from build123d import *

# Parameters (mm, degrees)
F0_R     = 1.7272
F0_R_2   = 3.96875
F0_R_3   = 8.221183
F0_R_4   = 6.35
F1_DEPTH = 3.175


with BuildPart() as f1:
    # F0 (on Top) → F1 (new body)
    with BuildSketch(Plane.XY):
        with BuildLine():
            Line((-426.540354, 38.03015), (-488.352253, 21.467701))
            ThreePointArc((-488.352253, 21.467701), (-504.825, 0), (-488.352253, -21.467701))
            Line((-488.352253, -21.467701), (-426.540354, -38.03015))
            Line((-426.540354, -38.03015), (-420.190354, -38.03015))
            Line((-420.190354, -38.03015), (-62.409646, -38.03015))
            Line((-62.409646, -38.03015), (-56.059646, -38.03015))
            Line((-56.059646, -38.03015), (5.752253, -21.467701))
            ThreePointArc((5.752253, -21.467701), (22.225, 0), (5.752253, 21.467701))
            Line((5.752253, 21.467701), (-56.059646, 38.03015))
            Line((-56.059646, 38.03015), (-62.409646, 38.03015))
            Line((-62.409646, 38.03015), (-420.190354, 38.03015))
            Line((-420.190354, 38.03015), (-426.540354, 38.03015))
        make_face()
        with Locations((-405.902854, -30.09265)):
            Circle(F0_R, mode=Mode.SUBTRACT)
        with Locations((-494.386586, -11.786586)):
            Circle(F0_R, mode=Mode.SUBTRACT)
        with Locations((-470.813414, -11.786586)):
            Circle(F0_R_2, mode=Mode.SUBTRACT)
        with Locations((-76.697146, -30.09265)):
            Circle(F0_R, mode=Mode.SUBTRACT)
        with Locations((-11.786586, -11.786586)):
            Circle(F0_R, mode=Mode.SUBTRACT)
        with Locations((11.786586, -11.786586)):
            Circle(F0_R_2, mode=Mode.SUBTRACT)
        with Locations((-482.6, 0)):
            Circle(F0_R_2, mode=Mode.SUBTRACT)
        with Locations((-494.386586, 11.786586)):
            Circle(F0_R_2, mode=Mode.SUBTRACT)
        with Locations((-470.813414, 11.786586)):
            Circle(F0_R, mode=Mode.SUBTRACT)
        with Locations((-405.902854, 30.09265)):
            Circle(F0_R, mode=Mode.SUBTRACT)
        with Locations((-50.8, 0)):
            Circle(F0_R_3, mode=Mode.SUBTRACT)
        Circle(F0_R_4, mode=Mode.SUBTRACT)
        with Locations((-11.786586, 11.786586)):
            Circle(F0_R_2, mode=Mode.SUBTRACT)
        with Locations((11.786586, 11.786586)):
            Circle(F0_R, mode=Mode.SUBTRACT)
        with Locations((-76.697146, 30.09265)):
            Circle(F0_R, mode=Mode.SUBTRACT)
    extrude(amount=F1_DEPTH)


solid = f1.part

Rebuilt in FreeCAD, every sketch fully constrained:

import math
import FreeCAD as App
import Part
import Sketcher

V = App.Vector
Q = App.Units.Quantity

doc = App.newDocument("Part")
body = doc.addObject("PartDesign::Body", "Body")

sketch1 = body.newObject("Sketcher::SketchObject", "Sketch")
sketch1.AttachmentSupport = (doc.getObject("XY_Plane"), [""])
sketch1.MapMode = "FlatFace"
sketch1.addGeometry(Part.LineSegment(V(-426.5, 38, 0), V(-488.4, 21.5, 0)), False)
sketch1.addGeometry(Part.ArcOfCircle(Part.Circle(V(-482.6, 0, 0), V(0, 0, 1), 22.2), math.radians(105), math.radians(255)), False)
sketch1.addGeometry(Part.LineSegment(V(-488.4, -21.5, 0), V(-426.5, -38, 0)), False)
sketch1.addGeometry(Part.LineSegment(V(-426.5, -38, 0), V(-56.1, -38, 0)), False)
sketch1.addGeometry(Part.LineSegment(V(-56.1, -38, 0), V(5.8, -21.5, 0)), False)
sketch1.addGeometry(Part.ArcOfCircle(Part.Circle(V(0, 0, 0), V(0, 0, 1), 22.2), math.radians(-75), math.radians(75)), False)
sketch1.addGeometry(Part.LineSegment(V(5.8, 21.5, 0), V(-56.1, 38, 0)), False)
sketch1.addGeometry(Part.LineSegment(V(-56.1, 38, 0), V(-426.5, 38, 0)), False)
sketch1.addGeometry(Part.Circle(V(-405.9, -30.1, 0), V(0, 0, 1), 1.7), False)
sketch1.addGeometry(Part.Circle(V(-494.4, -11.8, 0), V(0, 0, 1), 1.7), False)
sketch1.addGeometry(Part.Circle(V(-470.8, -11.8, 0), V(0, 0, 1), 4), False)
sketch1.addGeometry(Part.Circle(V(-482.6, 0, 0), V(0, 0, 1), 4), False)
sketch1.addGeometry(Part.Circle(V(-76.7, -30.1, 0), V(0, 0, 1), 1.7), False)
sketch1.addGeometry(Part.Circle(V(-11.8, -11.8, 0), V(0, 0, 1), 1.7), False)
sketch1.addGeometry(Part.Circle(V(11.8, -11.8, 0), V(0, 0, 1), 4), False)
sketch1.addGeometry(Part.Circle(V(-50.8, 0, 0), V(0, 0, 1), 8.2), False)
sketch1.addGeometry(Part.Circle(V(0, 0, 0), V(0, 0, 1), 6.3), False)
sketch1.addGeometry(Part.Circle(V(-494.4, 11.8, 0), V(0, 0, 1), 4), False)
sketch1.addGeometry(Part.Circle(V(-470.8, 11.8, 0), V(0, 0, 1), 1.7), False)
sketch1.addGeometry(Part.Circle(V(-405.9, 30.1, 0), V(0, 0, 1), 1.7), False)
sketch1.addGeometry(Part.Circle(V(-11.8, 11.8, 0), V(0, 0, 1), 4), False)
sketch1.addGeometry(Part.Circle(V(11.8, 11.8, 0), V(0, 0, 1), 1.7), False)
sketch1.addGeometry(Part.Circle(V(-76.7, 30.1, 0), V(0, 0, 1), 1.7), False)
sketch1.addConstraint(Sketcher.Constraint("Tangent", 0, 2, 1, 1))
sketch1.addConstraint(Sketcher.Constraint("Tangent", 1, 2, 2, 1))
sketch1.addConstraint(Sketcher.Constraint("Coincident", 2, 2, 3, 1))
sketch1.addConstraint(Sketcher.Constraint("Coincident", 3, 2, 4, 1))
sketch1.addConstraint(Sketcher.Constraint("Tangent", 4, 2, 5, 1))
sketch1.addConstraint(Sketcher.Constraint("Tangent", 5, 2, 6, 1))
sketch1.addConstraint(Sketcher.Constraint("Coincident", 6, 2, 7, 1))
sketch1.addConstraint(Sketcher.Constraint("Coincident", 7, 2, 0, 1))
sketch1.addConstraint(Sketcher.Constraint("Horizontal", 3))
sketch1.addConstraint(Sketcher.Constraint("Horizontal", 7))
sketch1.addConstraint(Sketcher.Constraint("Coincident", 5, 3, -1, 1))
sketch1.addConstraint(Sketcher.Constraint("Coincident", 16, 3, -1, 1))
sketch1.addConstraint(Sketcher.Constraint("Coincident", 11, 3, 1, 3))
sketch1.addConstraint(Sketcher.Constraint("Equal", 1, 5))
sketch1.addConstraint(Sketcher.Constraint("Equal", 8, 9))
sketch1.addConstraint(Sketcher.Constraint("Equal", 10, 11))
sketch1.addConstraint(Sketcher.Constraint("Equal", 9, 12))
sketch1.addConstraint(Sketcher.Constraint("Equal", 12, 13))
sketch1.addConstraint(Sketcher.Constraint("Equal", 11, 14))
sketch1.addConstraint(Sketcher.Constraint("Equal", 14, 17))
sketch1.addConstraint(Sketcher.Constraint("Equal", 13, 18))
sketch1.addConstraint(Sketcher.Constraint("Equal", 18, 19))
sketch1.addConstraint(Sketcher.Constraint("Equal", 17, 20))
sketch1.addConstraint(Sketcher.Constraint("Equal", 19, 21))
sketch1.addConstraint(Sketcher.Constraint("Equal", 21, 22))
sketch1.addConstraint(Sketcher.Constraint("Symmetric", 14, 3, 20, 3, -1, 1))
sketch1.addConstraint(Sketcher.Constraint("Symmetric", 13, 3, 21, 3, -1, 1))
sketch1.addConstraint(Sketcher.Constraint("Symmetric", 13, 3, 14, 3, -2))
sketch1.addConstraint(Sketcher.Constraint("Symmetric", 9, 3, 17, 3, -1))
sketch1.addConstraint(Sketcher.Constraint("Symmetric", 10, 3, 18, 3, -1))
sketch1.addConstraint(Sketcher.Constraint("Symmetric", 8, 3, 19, 3, -1))
sketch1.addConstraint(Sketcher.Constraint("Symmetric", 12, 3, 22, 3, -1))
sketch1.addConstraint(Sketcher.Constraint("Symmetric", 0, 2, 1, 2, -1))
sketch1.addConstraint(Sketcher.Constraint("Symmetric", 3, 2, 6, 2, -1))
sketch1.addConstraint(Sketcher.Constraint("PointOnObject", 15, 3, -1))
sketch1.addConstraint(Sketcher.Constraint("Parallel", 0, 4))
sketch1.addConstraint(Sketcher.Constraint("Horizontal", 9, 3, 10, 3))
sketch1.addConstraint(Sketcher.Constraint("Horizontal", 8, 3, 12, 3))
sketch1.addConstraint(Sketcher.Constraint("Horizontal", 10, 3, 13, 3))
sketch1.addConstraint(Sketcher.Constraint("Diameter", 16, Q("0.5 in")))
sketch1.addConstraint(Sketcher.Constraint("Diameter", 8, Q("0.136 in")))
sketch1.addConstraint(Sketcher.Constraint("Diameter", 10, Q("0.3125 in")))
sketch1.addConstraint(Sketcher.Constraint("DistanceX", 1, 3, -1, 1, Q("19 in")))
sketch1.addConstraint(Sketcher.Constraint("DistanceX", 15, 3, -1, 1, Q("2 in")))
sketch1.addConstraint(Sketcher.Constraint("Angle", 0, Q("-164.999999 deg")))
sketch1.addConstraint(Sketcher.Constraint("Radius", 1, Q("0.875 in")))
sketch1.addConstraint(Sketcher.Constraint("DistanceX", 10, 3, 14, 3, Q("19 in")))
sketch1.addConstraint(Sketcher.Constraint("DistanceX", 2, 2, 8, 3, Q("0.8125 in")))
sketch1.addConstraint(Sketcher.Constraint("DistanceY", 2, 2, 8, 3, Q("0.3125 in")))
sketch1.addConstraint(Sketcher.Constraint("DistanceX", 12, 3, 3, 2, Q("0.8125 in")))
sketch1.addConstraint(Sketcher.Constraint("Diameter", 15, Q("16.442366 mm")))
sketch1.addConstraint(Sketcher.Constraint("DistanceY", 8, 3, 19, 3, Q("2.3695 in")))
sketch1.addConstraint(Sketcher.Constraint("DistanceX", 9, 3, 10, 3, Q("23.573172 mm")))
sketch1.addConstraint(Sketcher.Constraint("DistanceX", 10, 3, 8, 3, Q("64.91056 mm")))
sketch1.addConstraint(Sketcher.Constraint("DistanceY", 9, 3, 17, 3, Q("23.573172 mm")))
pad1 = body.newObject("PartDesign::Pad", "Pad")
pad1.Profile = sketch1
pad1.Length = Q("0.125 in")

doc.recompute()
